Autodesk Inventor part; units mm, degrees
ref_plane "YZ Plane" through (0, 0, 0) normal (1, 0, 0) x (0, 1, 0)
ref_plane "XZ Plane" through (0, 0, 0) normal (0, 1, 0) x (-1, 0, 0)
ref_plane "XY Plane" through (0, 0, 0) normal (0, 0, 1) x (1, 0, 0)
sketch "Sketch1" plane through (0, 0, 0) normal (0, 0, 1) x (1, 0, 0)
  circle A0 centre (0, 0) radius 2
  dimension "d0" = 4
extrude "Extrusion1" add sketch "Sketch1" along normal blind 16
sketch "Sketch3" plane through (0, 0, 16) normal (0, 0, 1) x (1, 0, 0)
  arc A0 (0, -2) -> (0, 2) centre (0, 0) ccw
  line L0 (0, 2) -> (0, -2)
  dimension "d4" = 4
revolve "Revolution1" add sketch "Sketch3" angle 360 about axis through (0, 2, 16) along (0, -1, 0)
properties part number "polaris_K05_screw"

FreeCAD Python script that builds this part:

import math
import FreeCAD as App
import Part
import Sketcher
Q = App.Units.Quantity

doc = App.newDocument("Part")
body = doc.addObject("PartDesign::Body", "Body")

sketch1 = body.newObject("Sketcher::SketchObject", "Sketch")
sketch1.AttachmentSupport = (doc.getObject("XY_Plane"), [""])
sketch1.MapMode = "FlatFace"
sketch1.addGeometry(Part.Circle(App.Vector(0, 0, 0), App.Vector(0, 0, 1), 2), False)
sketch1.addConstraint(Sketcher.Constraint("Coincident", 0, 3, -1, 1))
sketch1.addConstraint(Sketcher.Constraint("Diameter", 0, Q("4 mm")))
pad1 = body.newObject("PartDesign::Pad", "Pad")
pad1.Profile = sketch1
pad1.Length = 16

sketch2 = body.newObject("Sketcher::SketchObject", "Sketch001")
sketch2.AttachmentSupport = (doc.getObject("XY_Plane"), [""])
sketch2.MapMode = "FlatFace"
sketch2.AttachmentOffset = App.Placement(App.Vector(0, 0, 16), App.Rotation())
sketch2.addGeometry(Part.LineSegment(App.Vector(0, 2, 0), App.Vector(0, -2, 0)), False)
sketch2.addGeometry(Part.ArcOfCircle(Part.Circle(App.Vector(0, 0, 0), App.Vector(0, 0, 1), 2), math.radians(-90), math.radians(90)), False)
sketch2.addConstraint(Sketcher.Constraint("Coincident", 0, 1, 1, 2))
sketch2.addConstraint(Sketcher.Constraint("Coincident", 1, 1, 0, 2))
sketch2.addConstraint(Sketcher.Constraint("Vertical", 0))
sketch2.addConstraint(Sketcher.Constraint("Coincident", 1, 3, -1, 1))
sketch2.addConstraint(Sketcher.Constraint("PointOnObject", 0, 1, -2))
sketch2.addConstraint(Sketcher.Constraint("Radius", 1, Q("2 mm")))
revolution = body.newObject("PartDesign::Revolution", "Revolution")
revolution.Profile = sketch2
revolution.ReferenceAxis = (sketch2, ["V_Axis"])
revolution.Angle = 360

doc.recompute()
